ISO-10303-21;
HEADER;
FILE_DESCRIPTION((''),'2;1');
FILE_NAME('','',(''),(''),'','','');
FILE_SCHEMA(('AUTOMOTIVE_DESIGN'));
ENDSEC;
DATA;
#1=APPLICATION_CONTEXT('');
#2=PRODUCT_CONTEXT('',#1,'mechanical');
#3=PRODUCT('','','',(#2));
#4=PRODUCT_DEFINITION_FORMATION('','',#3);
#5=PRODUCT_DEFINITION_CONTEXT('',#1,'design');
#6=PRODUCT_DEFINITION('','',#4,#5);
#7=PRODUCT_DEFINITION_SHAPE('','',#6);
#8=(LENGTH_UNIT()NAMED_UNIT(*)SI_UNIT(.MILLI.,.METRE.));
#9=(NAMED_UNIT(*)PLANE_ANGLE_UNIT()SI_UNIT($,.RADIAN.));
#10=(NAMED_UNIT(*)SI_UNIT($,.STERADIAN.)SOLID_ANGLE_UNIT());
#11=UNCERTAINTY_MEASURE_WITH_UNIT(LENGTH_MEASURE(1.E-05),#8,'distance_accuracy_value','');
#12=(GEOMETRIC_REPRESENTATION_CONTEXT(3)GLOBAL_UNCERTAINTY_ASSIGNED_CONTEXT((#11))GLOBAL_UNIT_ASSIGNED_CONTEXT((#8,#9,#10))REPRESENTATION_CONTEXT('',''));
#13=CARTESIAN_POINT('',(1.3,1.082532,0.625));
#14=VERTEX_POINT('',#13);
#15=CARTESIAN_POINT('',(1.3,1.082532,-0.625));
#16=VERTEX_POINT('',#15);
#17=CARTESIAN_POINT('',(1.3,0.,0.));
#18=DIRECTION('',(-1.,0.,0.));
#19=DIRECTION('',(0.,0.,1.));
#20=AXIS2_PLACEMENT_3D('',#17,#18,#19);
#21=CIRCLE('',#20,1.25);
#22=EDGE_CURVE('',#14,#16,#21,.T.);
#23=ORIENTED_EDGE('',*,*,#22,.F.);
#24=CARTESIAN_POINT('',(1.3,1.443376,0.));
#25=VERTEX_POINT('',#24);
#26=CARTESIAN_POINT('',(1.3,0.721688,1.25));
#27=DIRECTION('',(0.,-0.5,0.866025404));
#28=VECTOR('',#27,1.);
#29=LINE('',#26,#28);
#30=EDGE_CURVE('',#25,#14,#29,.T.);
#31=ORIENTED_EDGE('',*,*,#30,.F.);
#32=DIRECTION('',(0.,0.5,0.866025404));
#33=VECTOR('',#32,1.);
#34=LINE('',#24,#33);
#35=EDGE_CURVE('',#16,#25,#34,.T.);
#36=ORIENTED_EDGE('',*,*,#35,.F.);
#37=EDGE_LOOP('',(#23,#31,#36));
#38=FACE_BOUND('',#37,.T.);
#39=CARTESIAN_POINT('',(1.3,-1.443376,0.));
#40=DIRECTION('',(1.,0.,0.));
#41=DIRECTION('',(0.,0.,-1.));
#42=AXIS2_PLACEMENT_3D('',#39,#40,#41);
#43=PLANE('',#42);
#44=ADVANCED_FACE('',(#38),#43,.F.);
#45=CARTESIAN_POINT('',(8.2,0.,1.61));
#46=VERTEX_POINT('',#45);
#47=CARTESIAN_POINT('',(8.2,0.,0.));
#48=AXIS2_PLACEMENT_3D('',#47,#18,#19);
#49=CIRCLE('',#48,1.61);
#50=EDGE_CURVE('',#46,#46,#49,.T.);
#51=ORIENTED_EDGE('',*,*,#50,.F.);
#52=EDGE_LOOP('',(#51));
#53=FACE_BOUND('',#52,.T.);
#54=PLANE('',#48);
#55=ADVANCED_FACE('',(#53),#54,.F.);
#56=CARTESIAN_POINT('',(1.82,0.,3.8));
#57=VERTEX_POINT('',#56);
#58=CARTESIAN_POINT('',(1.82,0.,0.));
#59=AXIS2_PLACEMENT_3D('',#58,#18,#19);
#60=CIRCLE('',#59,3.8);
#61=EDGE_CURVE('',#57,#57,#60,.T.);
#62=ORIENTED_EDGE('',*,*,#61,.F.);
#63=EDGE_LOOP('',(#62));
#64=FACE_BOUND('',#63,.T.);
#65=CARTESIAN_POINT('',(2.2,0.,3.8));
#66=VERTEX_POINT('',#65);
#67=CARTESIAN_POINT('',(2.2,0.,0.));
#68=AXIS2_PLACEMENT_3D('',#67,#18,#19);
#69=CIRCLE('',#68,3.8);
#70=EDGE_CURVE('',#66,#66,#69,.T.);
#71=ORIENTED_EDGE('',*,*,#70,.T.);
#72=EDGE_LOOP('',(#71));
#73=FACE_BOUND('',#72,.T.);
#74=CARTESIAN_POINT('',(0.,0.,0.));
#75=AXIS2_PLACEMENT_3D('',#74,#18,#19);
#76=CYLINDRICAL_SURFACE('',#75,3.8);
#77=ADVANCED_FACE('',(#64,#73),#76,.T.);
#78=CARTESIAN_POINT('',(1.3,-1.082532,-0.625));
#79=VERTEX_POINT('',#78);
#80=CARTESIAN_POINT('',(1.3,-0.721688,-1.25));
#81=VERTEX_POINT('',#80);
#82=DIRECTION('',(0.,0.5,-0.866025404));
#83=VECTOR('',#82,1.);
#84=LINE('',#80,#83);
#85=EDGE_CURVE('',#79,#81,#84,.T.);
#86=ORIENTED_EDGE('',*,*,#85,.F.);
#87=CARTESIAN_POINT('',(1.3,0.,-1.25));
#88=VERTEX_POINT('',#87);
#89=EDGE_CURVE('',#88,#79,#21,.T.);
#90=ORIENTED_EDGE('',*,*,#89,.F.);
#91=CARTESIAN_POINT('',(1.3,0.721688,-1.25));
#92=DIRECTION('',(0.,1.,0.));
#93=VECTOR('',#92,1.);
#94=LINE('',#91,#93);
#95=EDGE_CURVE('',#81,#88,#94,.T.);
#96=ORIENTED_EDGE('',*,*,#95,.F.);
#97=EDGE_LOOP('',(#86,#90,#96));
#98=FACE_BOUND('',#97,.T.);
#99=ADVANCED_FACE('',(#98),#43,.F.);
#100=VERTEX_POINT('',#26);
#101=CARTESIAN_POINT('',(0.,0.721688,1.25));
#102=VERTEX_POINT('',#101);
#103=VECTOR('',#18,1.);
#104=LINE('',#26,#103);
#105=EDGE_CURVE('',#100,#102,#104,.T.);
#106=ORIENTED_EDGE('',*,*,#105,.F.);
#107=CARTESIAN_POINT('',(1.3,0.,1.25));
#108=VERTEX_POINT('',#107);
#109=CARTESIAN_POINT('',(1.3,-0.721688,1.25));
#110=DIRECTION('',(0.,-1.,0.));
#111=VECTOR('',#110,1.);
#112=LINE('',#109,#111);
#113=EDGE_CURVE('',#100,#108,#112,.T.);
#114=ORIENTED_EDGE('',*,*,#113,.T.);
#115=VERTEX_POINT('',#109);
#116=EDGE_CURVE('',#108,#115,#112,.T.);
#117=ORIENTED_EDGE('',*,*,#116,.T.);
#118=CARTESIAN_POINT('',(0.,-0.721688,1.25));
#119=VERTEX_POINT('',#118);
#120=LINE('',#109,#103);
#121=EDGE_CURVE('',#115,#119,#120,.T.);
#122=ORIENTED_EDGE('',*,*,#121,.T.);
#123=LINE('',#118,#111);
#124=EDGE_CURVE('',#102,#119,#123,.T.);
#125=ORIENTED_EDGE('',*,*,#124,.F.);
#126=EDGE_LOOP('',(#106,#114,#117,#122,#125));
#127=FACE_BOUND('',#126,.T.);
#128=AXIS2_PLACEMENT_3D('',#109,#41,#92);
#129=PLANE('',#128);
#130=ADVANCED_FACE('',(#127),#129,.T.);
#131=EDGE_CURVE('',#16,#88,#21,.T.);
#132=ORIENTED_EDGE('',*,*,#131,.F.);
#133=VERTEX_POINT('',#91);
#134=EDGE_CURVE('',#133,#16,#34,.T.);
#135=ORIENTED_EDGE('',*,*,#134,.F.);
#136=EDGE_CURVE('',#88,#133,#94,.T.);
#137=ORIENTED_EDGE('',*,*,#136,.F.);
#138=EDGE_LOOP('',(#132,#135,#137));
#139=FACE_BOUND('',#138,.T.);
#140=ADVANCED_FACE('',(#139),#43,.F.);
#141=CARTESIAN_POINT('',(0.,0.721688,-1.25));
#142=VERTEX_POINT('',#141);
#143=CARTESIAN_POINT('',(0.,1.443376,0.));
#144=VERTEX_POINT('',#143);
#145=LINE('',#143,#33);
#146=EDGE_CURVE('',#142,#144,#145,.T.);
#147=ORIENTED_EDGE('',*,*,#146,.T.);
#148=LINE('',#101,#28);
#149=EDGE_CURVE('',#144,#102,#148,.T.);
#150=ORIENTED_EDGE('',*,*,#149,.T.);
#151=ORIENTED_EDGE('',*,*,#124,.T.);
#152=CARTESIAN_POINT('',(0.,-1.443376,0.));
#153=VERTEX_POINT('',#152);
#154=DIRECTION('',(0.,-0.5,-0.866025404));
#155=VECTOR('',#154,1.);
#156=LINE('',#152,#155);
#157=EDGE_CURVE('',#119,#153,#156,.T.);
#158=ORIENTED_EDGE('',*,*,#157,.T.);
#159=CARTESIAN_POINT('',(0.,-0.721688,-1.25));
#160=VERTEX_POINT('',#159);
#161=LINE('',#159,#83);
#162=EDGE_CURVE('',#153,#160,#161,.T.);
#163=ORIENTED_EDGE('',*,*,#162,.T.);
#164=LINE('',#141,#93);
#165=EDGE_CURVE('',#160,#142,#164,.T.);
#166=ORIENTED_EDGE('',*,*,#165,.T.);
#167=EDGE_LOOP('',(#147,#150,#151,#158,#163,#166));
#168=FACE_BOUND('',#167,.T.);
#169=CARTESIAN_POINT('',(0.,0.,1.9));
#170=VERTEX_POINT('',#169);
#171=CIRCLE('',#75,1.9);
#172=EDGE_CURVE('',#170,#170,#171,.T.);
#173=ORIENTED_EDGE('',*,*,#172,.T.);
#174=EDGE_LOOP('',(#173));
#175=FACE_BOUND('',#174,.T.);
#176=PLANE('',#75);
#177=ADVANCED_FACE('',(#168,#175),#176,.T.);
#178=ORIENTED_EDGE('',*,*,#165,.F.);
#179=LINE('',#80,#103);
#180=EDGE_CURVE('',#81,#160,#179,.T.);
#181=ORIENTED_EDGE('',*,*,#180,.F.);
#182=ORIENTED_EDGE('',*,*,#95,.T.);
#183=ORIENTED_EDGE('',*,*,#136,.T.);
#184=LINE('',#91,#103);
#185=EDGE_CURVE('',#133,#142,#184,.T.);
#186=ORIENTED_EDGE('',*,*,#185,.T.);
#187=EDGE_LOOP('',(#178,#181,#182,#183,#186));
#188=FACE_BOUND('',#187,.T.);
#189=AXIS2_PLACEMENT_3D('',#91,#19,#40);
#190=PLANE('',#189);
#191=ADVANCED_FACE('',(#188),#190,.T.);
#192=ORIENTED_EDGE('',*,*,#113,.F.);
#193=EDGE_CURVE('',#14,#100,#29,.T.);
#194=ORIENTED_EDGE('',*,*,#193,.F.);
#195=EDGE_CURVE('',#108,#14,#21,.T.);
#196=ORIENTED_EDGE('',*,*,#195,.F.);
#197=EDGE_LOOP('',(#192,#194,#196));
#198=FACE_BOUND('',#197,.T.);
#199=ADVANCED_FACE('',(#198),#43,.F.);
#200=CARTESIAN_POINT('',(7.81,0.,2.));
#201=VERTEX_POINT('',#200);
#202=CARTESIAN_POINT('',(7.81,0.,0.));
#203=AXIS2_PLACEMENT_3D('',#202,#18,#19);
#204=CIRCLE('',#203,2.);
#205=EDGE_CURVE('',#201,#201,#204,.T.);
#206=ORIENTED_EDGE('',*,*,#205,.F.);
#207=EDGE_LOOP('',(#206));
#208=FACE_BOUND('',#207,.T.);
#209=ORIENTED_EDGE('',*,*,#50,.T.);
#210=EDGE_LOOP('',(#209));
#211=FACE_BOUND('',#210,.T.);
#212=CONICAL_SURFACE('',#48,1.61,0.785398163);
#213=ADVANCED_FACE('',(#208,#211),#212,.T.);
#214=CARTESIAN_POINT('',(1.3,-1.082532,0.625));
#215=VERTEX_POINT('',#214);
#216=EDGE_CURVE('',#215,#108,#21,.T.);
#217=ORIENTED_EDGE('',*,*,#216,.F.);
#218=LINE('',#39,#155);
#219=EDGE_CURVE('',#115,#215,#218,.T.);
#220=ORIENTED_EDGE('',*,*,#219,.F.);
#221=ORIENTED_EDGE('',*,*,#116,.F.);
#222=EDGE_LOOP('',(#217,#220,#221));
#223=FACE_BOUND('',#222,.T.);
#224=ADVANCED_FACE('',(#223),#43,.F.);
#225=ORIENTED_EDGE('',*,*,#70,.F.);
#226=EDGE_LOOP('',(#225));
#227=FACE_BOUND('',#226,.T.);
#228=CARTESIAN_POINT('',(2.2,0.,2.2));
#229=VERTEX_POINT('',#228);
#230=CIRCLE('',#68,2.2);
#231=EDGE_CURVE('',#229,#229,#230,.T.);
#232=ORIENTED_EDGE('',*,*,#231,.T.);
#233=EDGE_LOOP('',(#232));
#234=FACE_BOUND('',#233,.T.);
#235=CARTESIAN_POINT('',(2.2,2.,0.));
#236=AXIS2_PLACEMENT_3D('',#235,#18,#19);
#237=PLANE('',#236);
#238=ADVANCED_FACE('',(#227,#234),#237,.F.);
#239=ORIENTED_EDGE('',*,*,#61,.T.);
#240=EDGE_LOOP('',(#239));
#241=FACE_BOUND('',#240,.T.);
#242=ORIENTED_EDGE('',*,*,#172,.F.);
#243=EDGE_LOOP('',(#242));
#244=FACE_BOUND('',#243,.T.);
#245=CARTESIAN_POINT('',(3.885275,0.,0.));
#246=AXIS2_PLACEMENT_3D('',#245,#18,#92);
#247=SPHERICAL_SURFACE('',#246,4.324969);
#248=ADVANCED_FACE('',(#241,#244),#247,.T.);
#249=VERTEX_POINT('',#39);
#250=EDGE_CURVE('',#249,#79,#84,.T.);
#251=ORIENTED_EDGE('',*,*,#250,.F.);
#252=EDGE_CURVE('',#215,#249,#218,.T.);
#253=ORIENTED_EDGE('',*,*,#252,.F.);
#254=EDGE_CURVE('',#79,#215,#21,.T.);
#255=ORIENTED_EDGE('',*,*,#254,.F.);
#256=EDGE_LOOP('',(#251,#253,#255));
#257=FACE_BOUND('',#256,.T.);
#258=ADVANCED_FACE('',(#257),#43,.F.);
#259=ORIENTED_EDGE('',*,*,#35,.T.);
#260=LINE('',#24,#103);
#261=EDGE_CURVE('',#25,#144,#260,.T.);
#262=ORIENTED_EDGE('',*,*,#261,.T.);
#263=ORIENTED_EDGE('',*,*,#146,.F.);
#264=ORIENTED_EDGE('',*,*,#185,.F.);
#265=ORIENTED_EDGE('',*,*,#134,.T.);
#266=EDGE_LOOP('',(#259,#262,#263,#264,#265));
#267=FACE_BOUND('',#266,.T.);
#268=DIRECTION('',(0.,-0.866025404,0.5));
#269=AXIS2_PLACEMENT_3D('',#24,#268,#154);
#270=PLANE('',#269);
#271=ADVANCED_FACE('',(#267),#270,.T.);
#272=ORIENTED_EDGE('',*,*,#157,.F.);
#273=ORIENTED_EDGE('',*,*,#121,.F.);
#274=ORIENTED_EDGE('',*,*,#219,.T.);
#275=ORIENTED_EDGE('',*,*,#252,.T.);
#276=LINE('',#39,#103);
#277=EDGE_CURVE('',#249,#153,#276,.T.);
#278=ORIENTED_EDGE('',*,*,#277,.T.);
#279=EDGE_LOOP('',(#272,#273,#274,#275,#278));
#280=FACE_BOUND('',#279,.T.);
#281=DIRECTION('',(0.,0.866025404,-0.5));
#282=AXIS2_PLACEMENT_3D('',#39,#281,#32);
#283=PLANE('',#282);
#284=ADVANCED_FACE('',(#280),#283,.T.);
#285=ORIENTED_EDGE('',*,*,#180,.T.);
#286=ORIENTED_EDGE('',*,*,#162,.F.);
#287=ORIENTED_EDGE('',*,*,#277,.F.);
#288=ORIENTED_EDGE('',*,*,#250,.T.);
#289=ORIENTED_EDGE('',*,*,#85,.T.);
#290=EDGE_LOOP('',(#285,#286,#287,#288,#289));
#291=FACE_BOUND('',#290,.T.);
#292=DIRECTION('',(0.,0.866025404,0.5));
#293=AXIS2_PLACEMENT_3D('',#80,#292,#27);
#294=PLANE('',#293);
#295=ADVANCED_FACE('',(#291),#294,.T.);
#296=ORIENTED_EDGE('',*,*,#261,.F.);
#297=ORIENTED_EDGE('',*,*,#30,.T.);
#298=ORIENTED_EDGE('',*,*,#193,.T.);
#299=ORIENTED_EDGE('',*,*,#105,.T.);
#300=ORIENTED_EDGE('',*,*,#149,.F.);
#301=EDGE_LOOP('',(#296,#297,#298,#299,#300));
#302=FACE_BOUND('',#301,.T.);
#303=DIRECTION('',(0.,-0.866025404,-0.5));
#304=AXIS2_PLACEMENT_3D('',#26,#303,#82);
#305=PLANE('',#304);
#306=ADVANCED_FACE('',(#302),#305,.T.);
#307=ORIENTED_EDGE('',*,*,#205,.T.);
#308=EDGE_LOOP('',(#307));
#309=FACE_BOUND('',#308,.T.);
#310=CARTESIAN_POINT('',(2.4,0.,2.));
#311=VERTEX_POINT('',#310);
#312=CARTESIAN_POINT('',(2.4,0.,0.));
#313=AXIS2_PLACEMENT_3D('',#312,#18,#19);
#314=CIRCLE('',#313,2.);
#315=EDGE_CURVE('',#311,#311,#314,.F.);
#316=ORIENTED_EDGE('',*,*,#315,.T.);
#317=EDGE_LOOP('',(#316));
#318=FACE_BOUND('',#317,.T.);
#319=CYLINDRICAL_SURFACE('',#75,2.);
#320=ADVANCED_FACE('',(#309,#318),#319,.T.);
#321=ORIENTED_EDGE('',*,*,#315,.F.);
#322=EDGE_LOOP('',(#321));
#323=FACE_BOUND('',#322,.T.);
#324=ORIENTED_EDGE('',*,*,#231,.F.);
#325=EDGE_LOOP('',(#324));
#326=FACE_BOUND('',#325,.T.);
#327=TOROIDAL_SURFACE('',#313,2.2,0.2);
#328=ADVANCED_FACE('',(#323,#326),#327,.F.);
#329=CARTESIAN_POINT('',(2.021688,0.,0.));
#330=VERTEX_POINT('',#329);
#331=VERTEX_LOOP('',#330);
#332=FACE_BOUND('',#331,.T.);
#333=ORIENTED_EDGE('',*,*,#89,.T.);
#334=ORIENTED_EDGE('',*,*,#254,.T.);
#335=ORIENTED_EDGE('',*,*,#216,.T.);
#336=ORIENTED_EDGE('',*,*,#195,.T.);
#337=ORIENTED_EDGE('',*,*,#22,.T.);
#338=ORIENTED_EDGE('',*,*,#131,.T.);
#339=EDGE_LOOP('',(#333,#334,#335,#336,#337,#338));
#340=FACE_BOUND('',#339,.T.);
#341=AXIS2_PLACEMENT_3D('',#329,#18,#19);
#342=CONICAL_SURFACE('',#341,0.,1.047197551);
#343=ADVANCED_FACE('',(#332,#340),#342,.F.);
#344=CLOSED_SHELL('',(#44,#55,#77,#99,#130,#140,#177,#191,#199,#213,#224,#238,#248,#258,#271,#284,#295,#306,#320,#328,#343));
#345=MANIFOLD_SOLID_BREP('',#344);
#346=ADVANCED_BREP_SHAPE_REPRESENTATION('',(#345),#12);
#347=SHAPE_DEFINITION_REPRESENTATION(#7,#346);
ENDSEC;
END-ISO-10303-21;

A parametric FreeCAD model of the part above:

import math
import FreeCAD as App
import Part
import Sketcher

V = App.Vector
Q = App.Units.Quantity


def edges_at(feature, points):
    """Names of the edges that pass closest to the given points."""
    edges = feature.Shape.Edges
    near = lambda p: min(range(len(edges)), key=lambda i: edges[i].distToShape(Part.Vertex(*p))[0])
    return sorted({f"Edge{near(p) + 1}" for p in points})


def add_polygon(sketch, points):
    """Adds a closed chain of lines whose ends are joined by coincident constraints."""
    first, n = sketch.GeometryCount, len(points)
    for a, b in zip(points, points[1:] + points[:1]):
        sketch.addGeometry(Part.LineSegment(App.Vector(*a, 0), App.Vector(*b, 0)), False)
    for i in range(n):
        sketch.addConstraint(Sketcher.Constraint("Coincident", first + i, 2, first + (i + 1) % n, 1))

doc = App.newDocument("Part")
params = doc.addObject("Spreadsheet::Sheet", "Params")
for row, (alias, value) in enumerate([
    ("sketch1_width", "8.2 mm"),
    ("sketch1_height", "1.8 mm"),
    ("sketch1_height2", "1.9 mm"),
    ("sketch1_width2", "5.61 mm"),
    ("sketch1_width3", "0.38 mm"),
    ("revolution_angle", "360 deg"),
    ("fillet_radius", "0.2 mm"),
    ("sketch2_width", "1.3 mm"),
    ("sketch2_height", "1.25 mm"),
    ("groove_angle", "360 deg"),
    ("pocket1_length", "1.3 mm"),
], start=1):
    params.set(f"A{row}", alias)
    params.set(f"B{row}", "=" + value)
    params.setAlias(f"B{row}", alias)

body = doc.addObject("PartDesign::Body", "Body")

# Sketch on XY plane
sketch1 = body.newObject("Sketcher::SketchObject", "Sketch")
sketch1.AttachmentSupport = (doc.getObject("XY_Plane"), [""])
sketch1.MapMode = "FlatFace"
sketch1.addGeometry([
    Part.LineSegment(V(8.2, 0, 0), V(8.2, 1.61, 0)),  # 0
    Part.LineSegment(V(8.2, 1.61, 0), V(7.81, 2, 0)),  # 1
    Part.LineSegment(V(7.81, 2, 0), V(2.2, 2, 0)),  # 2
    Part.LineSegment(V(2.2, 2, 0), V(2.2, 3.8, 0)),  # 3
    Part.LineSegment(V(2.2, 3.8, 0), V(1.82, 3.8, 0)),  # 4
    Part.ArcOfCircle(Part.Circle(V(3.89, 0, 0), V(0, 0, 1), 4.32), math.radians(119), math.radians(154)),  # 5
    Part.LineSegment(V(0, 1.9, 0), V(0, 0, 0)),  # 6
    Part.LineSegment(V(0, 0, 0), V(8.2, 0, 0)),  # 7
], False)
sketch1.addConstraint([
    Sketcher.Constraint("Coincident", 0, 2, 1, 1),
    Sketcher.Constraint("Coincident", 1, 2, 2, 1),
    Sketcher.Constraint("Coincident", 2, 2, 3, 1),
    Sketcher.Constraint("Coincident", 3, 2, 4, 1),
    Sketcher.Constraint("Coincident", 4, 2, 5, 1),
    Sketcher.Constraint("Coincident", 5, 2, 6, 1),
    Sketcher.Constraint("Coincident", 6, 2, 7, 1),
    Sketcher.Constraint("Coincident", 7, 2, 0, 1),
    Sketcher.Constraint("Vertical", 0),
    Sketcher.Constraint("Horizontal", 2),
    Sketcher.Constraint("Vertical", 3),
    Sketcher.Constraint("Horizontal", 4),
    Sketcher.Constraint("Vertical", 6),
    Sketcher.Constraint("Horizontal", 7),
    Sketcher.Constraint("Coincident", 6, 2, -1, 1),
    Sketcher.Constraint("PointOnObject", 5, 3, -1),
    Sketcher.Constraint("Angle", 1, Q("135 deg")),
    Sketcher.Constraint("DistanceX", 7, 1, 7, 2, 8.2),
    Sketcher.Constraint("DistanceY", 3, 1, 3, 2, 1.8),
    Sketcher.Constraint("DistanceY", 6, 2, 6, 1, 1.9),
    Sketcher.Constraint("DistanceY", -1, 1, 1, 2, 2.0),
    Sketcher.Constraint("DistanceX", 2, 2, 0, 2, 6.0),
    Sketcher.Constraint("DistanceX", 2, 2, 2, 1, 5.61),
    Sketcher.Constraint("DistanceX", 4, 2, 4, 1, 0.38),
])
sketch1.setExpression("Constraints[17]", "Params.sketch1_width")
sketch1.setExpression("Constraints[18]", "Params.sketch1_height")
sketch1.setExpression("Constraints[19]", "Params.sketch1_height2")
sketch1.setExpression("Constraints[22]", "Params.sketch1_width2")
sketch1.setExpression("Constraints[23]", "Params.sketch1_width3")
revolution = body.newObject("PartDesign::Revolution", "Revolution")
revolution.Profile = sketch1
revolution.ReferenceAxis = (sketch1, ["H_Axis"])
revolution.setExpression("Angle", "Params.revolution_angle")
doc.recompute()

fillet = body.newObject("PartDesign::Fillet", "Fillet")
fillet.Base = (revolution, edges_at(revolution, [(2.2, -2, 0)]))
fillet.setExpression("Radius", "Params.fillet_radius")

# Sketch on XY plane
sketch2 = body.newObject("Sketcher::SketchObject", "Sketch001")
sketch2.AttachmentSupport = (doc.getObject("XY_Plane"), [""])
sketch2.MapMode = "FlatFace"
add_polygon(sketch2, [(1.3, 1.2), (0, 1.2), (0, 0), (2, 0)])  # lines 0-3
sketch2.addConstraint([
    Sketcher.Constraint("Horizontal", 0),
    Sketcher.Constraint("Vertical", 1),
    Sketcher.Constraint("Horizontal", 2),
    Sketcher.Constraint("Coincident", 1, 2, -1, 1),
    Sketcher.Constraint("Angle", 3, Q("120 deg")),
    Sketcher.Constraint("DistanceX", 0, 2, 0, 1, 1.3),
    Sketcher.Constraint("DistanceY", 1, 2, 1, 1, 1.25),
])
sketch2.setExpression("Constraints[9]", "Params.sketch2_width")
sketch2.setExpression("Constraints[10]", "Params.sketch2_height")
groove = body.newObject("PartDesign::Groove", "Groove")
groove.Profile = sketch2
groove.ReferenceAxis = (sketch2, ["H_Axis"])
groove.setExpression("Angle", "Params.groove_angle")

# Sketch on YZ plane
sketch3 = body.newObject("Sketcher::SketchObject", "Sketch002")
sketch3.AttachmentSupport = (doc.getObject("YZ_Plane"), [""])
sketch3.MapMode = "FlatFace"
add_polygon(sketch3, [(0.7, 1.2), (-0.7, 1.2), (-1.4, 0), (-0.7, -1.2), (0.7, -1.2), (1.4, 0)])  # lines 0-5
sketch3.addConstraint([
    Sketcher.Constraint("Horizontal", 0),
    Sketcher.Constraint("Horizontal", 3),
    Sketcher.Constraint("Symmetric", 0, 2, 3, 2, -1, 1),
    Sketcher.Constraint("Symmetric", 1, 2, 4, 2, -1, 1),
    Sketcher.Constraint("PointOnObject", 1, 2, -1),
    Sketcher.Constraint("Parallel", 2, 5),
    Sketcher.Constraint("Vertical", 0, 2, 2, 2),
    Sketcher.Constraint("Angle", 1, Q("-120 deg")),
    Sketcher.Constraint("DistanceY", 2, 2, 0, 2, 2.5),
    Sketcher.Constraint("DistanceX", 0, 2, 0, 1, 1.443376),
])
pocket1 = body.newObject("PartDesign::Pocket", "Pocket")
pocket1.Profile = sketch3
pocket1.setExpression("Length", "Params.pocket1_length")
pocket1.Reversed = True

doc.recompute()
